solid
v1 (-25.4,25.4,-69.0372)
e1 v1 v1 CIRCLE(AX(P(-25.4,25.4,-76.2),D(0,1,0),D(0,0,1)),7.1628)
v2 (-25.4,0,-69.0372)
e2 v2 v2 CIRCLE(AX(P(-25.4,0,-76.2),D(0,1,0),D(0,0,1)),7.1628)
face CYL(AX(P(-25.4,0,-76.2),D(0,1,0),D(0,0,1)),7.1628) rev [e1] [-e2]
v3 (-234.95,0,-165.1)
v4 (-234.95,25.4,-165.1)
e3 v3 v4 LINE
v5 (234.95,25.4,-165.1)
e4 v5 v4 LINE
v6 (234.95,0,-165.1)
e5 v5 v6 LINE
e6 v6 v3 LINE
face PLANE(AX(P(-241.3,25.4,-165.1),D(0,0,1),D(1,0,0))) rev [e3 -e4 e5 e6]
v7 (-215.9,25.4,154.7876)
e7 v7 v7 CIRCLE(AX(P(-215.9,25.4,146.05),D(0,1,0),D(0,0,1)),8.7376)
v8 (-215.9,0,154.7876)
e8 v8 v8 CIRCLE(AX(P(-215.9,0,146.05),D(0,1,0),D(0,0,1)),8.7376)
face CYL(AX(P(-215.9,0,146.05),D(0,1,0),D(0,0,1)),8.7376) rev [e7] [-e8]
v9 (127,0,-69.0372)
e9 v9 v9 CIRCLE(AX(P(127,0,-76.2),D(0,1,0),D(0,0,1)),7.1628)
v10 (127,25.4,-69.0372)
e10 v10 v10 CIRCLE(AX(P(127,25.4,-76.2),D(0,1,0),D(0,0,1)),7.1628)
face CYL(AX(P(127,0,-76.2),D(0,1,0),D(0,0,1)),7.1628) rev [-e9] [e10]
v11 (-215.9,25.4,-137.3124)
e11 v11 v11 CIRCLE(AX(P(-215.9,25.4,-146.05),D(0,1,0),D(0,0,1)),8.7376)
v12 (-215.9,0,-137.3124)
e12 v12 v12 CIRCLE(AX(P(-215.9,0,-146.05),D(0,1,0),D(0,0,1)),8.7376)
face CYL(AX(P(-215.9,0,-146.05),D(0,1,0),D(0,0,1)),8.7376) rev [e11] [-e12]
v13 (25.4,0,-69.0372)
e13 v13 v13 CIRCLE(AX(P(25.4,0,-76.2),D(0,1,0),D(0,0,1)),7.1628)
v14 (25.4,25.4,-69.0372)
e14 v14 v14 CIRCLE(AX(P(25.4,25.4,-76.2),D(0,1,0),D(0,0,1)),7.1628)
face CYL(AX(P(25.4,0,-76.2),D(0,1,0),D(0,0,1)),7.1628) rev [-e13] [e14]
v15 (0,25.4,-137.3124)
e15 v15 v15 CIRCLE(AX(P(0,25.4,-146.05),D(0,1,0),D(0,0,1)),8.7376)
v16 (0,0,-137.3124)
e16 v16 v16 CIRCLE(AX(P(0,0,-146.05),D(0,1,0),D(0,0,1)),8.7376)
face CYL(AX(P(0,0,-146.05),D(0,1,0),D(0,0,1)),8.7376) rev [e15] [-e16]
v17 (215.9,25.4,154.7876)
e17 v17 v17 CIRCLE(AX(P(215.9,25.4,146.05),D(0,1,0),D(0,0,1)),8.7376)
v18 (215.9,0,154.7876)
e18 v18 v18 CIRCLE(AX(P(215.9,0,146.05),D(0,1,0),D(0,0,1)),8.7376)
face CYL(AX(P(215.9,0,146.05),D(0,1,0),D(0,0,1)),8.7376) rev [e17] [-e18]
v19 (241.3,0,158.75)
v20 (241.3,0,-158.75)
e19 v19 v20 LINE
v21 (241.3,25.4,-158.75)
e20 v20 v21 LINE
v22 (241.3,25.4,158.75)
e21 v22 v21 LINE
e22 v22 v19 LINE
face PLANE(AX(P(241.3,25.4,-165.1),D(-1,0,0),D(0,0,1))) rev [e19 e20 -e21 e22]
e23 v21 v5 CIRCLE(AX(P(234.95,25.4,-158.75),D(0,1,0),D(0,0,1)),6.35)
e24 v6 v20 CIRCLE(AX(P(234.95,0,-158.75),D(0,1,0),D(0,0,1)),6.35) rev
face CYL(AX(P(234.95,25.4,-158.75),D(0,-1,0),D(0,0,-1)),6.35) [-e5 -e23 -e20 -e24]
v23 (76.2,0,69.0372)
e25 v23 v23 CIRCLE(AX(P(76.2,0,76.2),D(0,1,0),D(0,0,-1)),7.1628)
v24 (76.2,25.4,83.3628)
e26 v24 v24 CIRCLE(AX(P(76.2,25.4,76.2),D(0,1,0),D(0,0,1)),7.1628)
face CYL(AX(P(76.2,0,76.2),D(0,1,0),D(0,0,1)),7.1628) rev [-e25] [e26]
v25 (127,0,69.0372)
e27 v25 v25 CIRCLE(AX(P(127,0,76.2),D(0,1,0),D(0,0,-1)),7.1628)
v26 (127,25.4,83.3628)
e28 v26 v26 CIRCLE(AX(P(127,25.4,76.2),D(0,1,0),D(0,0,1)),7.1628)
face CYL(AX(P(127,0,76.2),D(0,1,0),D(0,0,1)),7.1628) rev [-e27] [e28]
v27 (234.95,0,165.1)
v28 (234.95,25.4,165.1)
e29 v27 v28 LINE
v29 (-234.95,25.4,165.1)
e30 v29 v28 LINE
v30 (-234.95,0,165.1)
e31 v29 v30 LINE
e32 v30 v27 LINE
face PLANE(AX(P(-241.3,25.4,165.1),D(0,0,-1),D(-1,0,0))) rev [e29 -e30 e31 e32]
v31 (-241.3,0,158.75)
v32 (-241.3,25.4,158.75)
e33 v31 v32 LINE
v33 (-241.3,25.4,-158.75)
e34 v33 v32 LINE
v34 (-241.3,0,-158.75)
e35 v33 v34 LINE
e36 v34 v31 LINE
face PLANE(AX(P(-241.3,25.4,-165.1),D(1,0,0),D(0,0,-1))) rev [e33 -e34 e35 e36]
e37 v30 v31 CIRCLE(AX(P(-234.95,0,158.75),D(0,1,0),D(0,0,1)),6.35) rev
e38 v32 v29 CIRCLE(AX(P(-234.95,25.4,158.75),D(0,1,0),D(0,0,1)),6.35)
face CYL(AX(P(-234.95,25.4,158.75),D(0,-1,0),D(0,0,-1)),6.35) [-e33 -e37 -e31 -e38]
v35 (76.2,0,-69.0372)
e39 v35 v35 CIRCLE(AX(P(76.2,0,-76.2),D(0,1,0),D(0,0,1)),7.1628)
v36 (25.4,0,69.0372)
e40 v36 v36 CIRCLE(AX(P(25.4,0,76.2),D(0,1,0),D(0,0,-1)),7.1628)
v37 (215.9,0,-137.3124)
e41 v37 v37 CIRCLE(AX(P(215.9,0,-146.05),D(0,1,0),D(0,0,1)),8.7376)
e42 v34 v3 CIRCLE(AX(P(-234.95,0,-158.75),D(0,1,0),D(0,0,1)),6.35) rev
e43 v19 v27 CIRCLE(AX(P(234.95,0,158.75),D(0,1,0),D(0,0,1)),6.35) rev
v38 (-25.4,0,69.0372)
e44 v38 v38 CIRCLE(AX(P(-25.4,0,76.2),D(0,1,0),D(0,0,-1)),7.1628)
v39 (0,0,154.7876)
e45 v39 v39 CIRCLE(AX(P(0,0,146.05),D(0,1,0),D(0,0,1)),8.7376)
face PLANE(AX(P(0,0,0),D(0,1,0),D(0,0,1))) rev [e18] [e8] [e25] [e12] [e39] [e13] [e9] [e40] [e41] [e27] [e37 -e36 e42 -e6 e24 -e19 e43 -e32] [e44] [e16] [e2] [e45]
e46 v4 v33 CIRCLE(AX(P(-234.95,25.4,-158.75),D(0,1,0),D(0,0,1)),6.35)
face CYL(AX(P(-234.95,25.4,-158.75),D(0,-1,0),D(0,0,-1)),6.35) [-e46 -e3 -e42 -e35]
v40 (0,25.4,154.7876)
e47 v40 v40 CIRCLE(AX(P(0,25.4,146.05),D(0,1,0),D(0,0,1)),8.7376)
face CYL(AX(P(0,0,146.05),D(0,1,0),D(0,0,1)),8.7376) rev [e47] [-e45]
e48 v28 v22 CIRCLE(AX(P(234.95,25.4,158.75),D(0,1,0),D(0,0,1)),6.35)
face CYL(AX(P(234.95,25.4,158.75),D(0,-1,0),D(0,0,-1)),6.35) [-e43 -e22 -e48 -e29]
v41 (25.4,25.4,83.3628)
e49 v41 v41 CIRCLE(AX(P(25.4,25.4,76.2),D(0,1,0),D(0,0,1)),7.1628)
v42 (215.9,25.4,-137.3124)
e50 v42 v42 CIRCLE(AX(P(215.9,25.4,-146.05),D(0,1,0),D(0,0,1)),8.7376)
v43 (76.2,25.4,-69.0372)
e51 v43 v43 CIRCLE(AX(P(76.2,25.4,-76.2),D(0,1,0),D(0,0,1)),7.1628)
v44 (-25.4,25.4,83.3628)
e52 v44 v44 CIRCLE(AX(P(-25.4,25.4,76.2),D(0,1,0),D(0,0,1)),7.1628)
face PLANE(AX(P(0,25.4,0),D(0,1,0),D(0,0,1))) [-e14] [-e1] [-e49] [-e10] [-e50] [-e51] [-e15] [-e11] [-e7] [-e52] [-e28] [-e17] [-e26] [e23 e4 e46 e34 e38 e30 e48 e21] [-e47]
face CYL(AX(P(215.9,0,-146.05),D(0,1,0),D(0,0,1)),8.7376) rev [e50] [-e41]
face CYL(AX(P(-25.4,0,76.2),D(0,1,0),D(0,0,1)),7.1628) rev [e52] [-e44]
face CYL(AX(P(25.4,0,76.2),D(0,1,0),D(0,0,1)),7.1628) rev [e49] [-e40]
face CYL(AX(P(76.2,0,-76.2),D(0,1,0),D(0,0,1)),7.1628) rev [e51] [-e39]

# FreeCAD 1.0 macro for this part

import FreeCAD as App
import Part
import Sketcher
from FreeCAD import Vector
Q = App.Units.Quantity


def edges_at(feature, points):
    """Names of the edges that pass closest to the given points."""
    edges = feature.Shape.Edges
    near = lambda p: min(range(len(edges)), key=lambda i: edges[i].distToShape(Part.Vertex(*p))[0])
    return sorted({f"Edge{near(p) + 1}" for p in points})


def add_polygon(sketch, points):
    """Adds a closed chain of lines whose ends are joined by coincident constraints."""
    first, n = sketch.GeometryCount, len(points)
    for a, b in zip(points, points[1:] + points[:1]):
        sketch.addGeometry(Part.LineSegment(App.Vector(*a, 0), App.Vector(*b, 0)), False)
    for i in range(n):
        sketch.addConstraint(Sketcher.Constraint("Coincident", first + i, 2, first + (i + 1) % n, 1))

doc = App.newDocument("Part")
body = doc.addObject("PartDesign::Body", "Body")

sketch1 = body.newObject("Sketcher::SketchObject", "Sketch")
sketch1.AttachmentSupport = (doc.getObject("XZ_Plane"), [""])
sketch1.MapMode = "FlatFace"
add_polygon(sketch1, [(-241, -165), (-241, 165), (241, 165), (241, -165)])
sketch1.addConstraint(Sketcher.Constraint("Vertical", 0))
sketch1.addConstraint(Sketcher.Constraint("Horizontal", 1))
sketch1.addConstraint(Sketcher.Constraint("Vertical", 2))
sketch1.addConstraint(Sketcher.Constraint("Horizontal", 3))
sketch1.addConstraint(Sketcher.Constraint("Symmetric", 0, 2, 2, 2, -1, 1))
sketch1.addConstraint(Sketcher.Constraint("DistanceX", 1, 1, 1, 2, Q("19 in")))
sketch1.addConstraint(Sketcher.Constraint("DistanceY", 0, 1, 0, 2, Q("13 in")))
pad1 = body.newObject("PartDesign::Pad", "Pad")
pad1.Profile = sketch1
pad1.Length = Q("1 in")
pad1.Reversed = True

sketch2 = body.newObject("Sketcher::SketchObject", "Sketch001")
sketch2.AttachmentSupport = (doc.getObject("XZ_Plane"), [""])
sketch2.MapMode = "FlatFace"
sketch2.AttachmentOffset = App.Placement(Vector(0, 0, -1 * 25.4), App.Rotation())
sketch2.addGeometry(Part.Circle(Vector(216, -146, 0), Vector(0, 0, 1), 9), False)
sketch2.addGeometry(Part.Circle(Vector(-216, -146, 0), Vector(0, 0, 1), 9), False)
sketch2.addGeometry(Part.Circle(Vector(216, 146, 0), Vector(0, 0, 1), 9), False)
sketch2.addGeometry(Part.Circle(Vector(-216, 146, 0), Vector(0, 0, 1), 9), False)
sketch2.addGeometry(Part.Circle(Vector(0, -146, 0), Vector(0, 0, 1), 9), False)
sketch2.addGeometry(Part.Circle(Vector(0, 146, 0), Vector(0, 0, 1), 9), False)
sketch2.addConstraint(Sketcher.Constraint("Equal", 0, 1))
sketch2.addConstraint(Sketcher.Constraint("Equal", 1, 2))
sketch2.addConstraint(Sketcher.Constraint("Equal", 2, 3))
sketch2.addConstraint(Sketcher.Constraint("Equal", 3, 4))
sketch2.addConstraint(Sketcher.Constraint("Equal", 4, 5))
sketch2.addConstraint(Sketcher.Constraint("Symmetric", 1, 3, 2, 3, -1, 1))
sketch2.addConstraint(Sketcher.Constraint("Symmetric", 0, 3, 3, 3, -1, 1))
sketch2.addConstraint(Sketcher.Constraint("Symmetric", 4, 3, 5, 3, -1, 1))
sketch2.addConstraint(Sketcher.Constraint("Symmetric", 0, 3, 1, 3, -2))
sketch2.addConstraint(Sketcher.Constraint("PointOnObject", 4, 3, -2))
sketch2.addConstraint(Sketcher.Constraint("Horizontal", 1, 3, 4, 3))
sketch2.addConstraint(Sketcher.Constraint("Diameter", 0, Q("0.688 in")))
sketch2.addConstraint(Sketcher.Constraint("DistanceX", 1, 3, 0, 3, Q("17 in")))
sketch2.addConstraint(Sketcher.Constraint("DistanceY", 0, 3, 2, 3, Q("11.5 in")))
pocket1 = body.newObject("PartDesign::Pocket", "Pocket")
pocket1.Profile = sketch2
pocket1.Type = "ThroughAll"
pocket1.Midplane = True

sketch3 = body.newObject("Sketcher::SketchObject", "Sketch002")
sketch3.AttachmentSupport = (doc.getObject("XZ_Plane"), [""])
sketch3.MapMode = "FlatFace"
sketch3.AttachmentOffset = App.Placement(Vector(0, 0, -1 * 25.4), App.Rotation())
sketch3.addGeometry(Part.Circle(Vector(-25, -76, 0), Vector(0, 0, 1), 7), False)
sketch3.addGeometry(Part.Circle(Vector(25, -76, 0), Vector(0, 0, 1), 7), False)
sketch3.addGeometry(Part.Circle(Vector(76, -76, 0), Vector(0, 0, 1), 7), False)
sketch3.addGeometry(Part.Circle(Vector(127, -76, 0), Vector(0, 0, 1), 7), False)
sketch3.addGeometry(Part.Circle(Vector(127, 76, 0), Vector(0, 0, 1), 7), False)
sketch3.addGeometry(Part.Circle(Vector(76, 76, 0), Vector(0, 0, 1), 7), False)
sketch3.addGeometry(Part.Circle(Vector(25, 76, 0), Vector(0, 0, 1), 7), False)
sketch3.addGeometry(Part.Circle(Vector(-25, 76, 0), Vector(0, 0, 1), 7), False)
sketch3.addConstraint(Sketcher.Constraint("Equal", 0, 1))
sketch3.addConstraint(Sketcher.Constraint("Equal", 1, 2))
sketch3.addConstraint(Sketcher.Constraint("Equal", 2, 3))
sketch3.addConstraint(Sketcher.Constraint("Equal", 3, 4))
sketch3.addConstraint(Sketcher.Constraint("Equal", 4, 5))
sketch3.addConstraint(Sketcher.Constraint("Equal", 5, 6))
sketch3.addConstraint(Sketcher.Constraint("Equal", 6, 7))
sketch3.addConstraint(Sketcher.Constraint("Symmetric", 0, 3, 6, 3, -1, 1))
sketch3.addConstraint(Sketcher.Constraint("Symmetric", 1, 3, 7, 3, -1, 1))
sketch3.addConstraint(Sketcher.Constraint("Symmetric", 0, 3, 1, 3, -2))
sketch3.addConstraint(Sketcher.Constraint("Symmetric", 3, 3, 4, 3, -1))
sketch3.addConstraint(Sketcher.Constraint("Symmetric", 2, 3, 5, 3, -1))
sketch3.addConstraint(Sketcher.Constraint("Horizontal", 1, 3, 2, 3))
sketch3.addConstraint(Sketcher.Constraint("Horizontal", 2, 3, 3, 3))
sketch3.addConstraint(Sketcher.Constraint("Diameter", 0, Q("0.564 in")))
sketch3.addConstraint(Sketcher.Constraint("DistanceX", 0, 3, -1, 1, Q("1 in")))
sketch3.addConstraint(Sketcher.Constraint("DistanceY", 0, 3, -1, 1, Q("3 in")))
sketch3.addConstraint(Sketcher.Constraint("DistanceX", -1, 1, 2, 3, Q("3 in")))
sketch3.addConstraint(Sketcher.Constraint("DistanceX", -1, 1, 3, 3, Q("5 in")))
pocket2 = body.newObject("PartDesign::Pocket", "Pocket001")
pocket2.Profile = sketch3
pocket2.Type = "ThroughAll"
pocket2.Midplane = True
doc.recompute()

fillet = body.newObject("PartDesign::Fillet", "Fillet")
fillet.Base = (pocket2, edges_at(pocket2, [
    (241.3, 12.7, 165.1),
    (-241.3, 12.7, 165.1),
    (-241.3, 12.7, -165.1),
    (241.3, 12.7, -165.1),
]))
fillet.Radius = Q("0.25 in")

doc.recompute()
